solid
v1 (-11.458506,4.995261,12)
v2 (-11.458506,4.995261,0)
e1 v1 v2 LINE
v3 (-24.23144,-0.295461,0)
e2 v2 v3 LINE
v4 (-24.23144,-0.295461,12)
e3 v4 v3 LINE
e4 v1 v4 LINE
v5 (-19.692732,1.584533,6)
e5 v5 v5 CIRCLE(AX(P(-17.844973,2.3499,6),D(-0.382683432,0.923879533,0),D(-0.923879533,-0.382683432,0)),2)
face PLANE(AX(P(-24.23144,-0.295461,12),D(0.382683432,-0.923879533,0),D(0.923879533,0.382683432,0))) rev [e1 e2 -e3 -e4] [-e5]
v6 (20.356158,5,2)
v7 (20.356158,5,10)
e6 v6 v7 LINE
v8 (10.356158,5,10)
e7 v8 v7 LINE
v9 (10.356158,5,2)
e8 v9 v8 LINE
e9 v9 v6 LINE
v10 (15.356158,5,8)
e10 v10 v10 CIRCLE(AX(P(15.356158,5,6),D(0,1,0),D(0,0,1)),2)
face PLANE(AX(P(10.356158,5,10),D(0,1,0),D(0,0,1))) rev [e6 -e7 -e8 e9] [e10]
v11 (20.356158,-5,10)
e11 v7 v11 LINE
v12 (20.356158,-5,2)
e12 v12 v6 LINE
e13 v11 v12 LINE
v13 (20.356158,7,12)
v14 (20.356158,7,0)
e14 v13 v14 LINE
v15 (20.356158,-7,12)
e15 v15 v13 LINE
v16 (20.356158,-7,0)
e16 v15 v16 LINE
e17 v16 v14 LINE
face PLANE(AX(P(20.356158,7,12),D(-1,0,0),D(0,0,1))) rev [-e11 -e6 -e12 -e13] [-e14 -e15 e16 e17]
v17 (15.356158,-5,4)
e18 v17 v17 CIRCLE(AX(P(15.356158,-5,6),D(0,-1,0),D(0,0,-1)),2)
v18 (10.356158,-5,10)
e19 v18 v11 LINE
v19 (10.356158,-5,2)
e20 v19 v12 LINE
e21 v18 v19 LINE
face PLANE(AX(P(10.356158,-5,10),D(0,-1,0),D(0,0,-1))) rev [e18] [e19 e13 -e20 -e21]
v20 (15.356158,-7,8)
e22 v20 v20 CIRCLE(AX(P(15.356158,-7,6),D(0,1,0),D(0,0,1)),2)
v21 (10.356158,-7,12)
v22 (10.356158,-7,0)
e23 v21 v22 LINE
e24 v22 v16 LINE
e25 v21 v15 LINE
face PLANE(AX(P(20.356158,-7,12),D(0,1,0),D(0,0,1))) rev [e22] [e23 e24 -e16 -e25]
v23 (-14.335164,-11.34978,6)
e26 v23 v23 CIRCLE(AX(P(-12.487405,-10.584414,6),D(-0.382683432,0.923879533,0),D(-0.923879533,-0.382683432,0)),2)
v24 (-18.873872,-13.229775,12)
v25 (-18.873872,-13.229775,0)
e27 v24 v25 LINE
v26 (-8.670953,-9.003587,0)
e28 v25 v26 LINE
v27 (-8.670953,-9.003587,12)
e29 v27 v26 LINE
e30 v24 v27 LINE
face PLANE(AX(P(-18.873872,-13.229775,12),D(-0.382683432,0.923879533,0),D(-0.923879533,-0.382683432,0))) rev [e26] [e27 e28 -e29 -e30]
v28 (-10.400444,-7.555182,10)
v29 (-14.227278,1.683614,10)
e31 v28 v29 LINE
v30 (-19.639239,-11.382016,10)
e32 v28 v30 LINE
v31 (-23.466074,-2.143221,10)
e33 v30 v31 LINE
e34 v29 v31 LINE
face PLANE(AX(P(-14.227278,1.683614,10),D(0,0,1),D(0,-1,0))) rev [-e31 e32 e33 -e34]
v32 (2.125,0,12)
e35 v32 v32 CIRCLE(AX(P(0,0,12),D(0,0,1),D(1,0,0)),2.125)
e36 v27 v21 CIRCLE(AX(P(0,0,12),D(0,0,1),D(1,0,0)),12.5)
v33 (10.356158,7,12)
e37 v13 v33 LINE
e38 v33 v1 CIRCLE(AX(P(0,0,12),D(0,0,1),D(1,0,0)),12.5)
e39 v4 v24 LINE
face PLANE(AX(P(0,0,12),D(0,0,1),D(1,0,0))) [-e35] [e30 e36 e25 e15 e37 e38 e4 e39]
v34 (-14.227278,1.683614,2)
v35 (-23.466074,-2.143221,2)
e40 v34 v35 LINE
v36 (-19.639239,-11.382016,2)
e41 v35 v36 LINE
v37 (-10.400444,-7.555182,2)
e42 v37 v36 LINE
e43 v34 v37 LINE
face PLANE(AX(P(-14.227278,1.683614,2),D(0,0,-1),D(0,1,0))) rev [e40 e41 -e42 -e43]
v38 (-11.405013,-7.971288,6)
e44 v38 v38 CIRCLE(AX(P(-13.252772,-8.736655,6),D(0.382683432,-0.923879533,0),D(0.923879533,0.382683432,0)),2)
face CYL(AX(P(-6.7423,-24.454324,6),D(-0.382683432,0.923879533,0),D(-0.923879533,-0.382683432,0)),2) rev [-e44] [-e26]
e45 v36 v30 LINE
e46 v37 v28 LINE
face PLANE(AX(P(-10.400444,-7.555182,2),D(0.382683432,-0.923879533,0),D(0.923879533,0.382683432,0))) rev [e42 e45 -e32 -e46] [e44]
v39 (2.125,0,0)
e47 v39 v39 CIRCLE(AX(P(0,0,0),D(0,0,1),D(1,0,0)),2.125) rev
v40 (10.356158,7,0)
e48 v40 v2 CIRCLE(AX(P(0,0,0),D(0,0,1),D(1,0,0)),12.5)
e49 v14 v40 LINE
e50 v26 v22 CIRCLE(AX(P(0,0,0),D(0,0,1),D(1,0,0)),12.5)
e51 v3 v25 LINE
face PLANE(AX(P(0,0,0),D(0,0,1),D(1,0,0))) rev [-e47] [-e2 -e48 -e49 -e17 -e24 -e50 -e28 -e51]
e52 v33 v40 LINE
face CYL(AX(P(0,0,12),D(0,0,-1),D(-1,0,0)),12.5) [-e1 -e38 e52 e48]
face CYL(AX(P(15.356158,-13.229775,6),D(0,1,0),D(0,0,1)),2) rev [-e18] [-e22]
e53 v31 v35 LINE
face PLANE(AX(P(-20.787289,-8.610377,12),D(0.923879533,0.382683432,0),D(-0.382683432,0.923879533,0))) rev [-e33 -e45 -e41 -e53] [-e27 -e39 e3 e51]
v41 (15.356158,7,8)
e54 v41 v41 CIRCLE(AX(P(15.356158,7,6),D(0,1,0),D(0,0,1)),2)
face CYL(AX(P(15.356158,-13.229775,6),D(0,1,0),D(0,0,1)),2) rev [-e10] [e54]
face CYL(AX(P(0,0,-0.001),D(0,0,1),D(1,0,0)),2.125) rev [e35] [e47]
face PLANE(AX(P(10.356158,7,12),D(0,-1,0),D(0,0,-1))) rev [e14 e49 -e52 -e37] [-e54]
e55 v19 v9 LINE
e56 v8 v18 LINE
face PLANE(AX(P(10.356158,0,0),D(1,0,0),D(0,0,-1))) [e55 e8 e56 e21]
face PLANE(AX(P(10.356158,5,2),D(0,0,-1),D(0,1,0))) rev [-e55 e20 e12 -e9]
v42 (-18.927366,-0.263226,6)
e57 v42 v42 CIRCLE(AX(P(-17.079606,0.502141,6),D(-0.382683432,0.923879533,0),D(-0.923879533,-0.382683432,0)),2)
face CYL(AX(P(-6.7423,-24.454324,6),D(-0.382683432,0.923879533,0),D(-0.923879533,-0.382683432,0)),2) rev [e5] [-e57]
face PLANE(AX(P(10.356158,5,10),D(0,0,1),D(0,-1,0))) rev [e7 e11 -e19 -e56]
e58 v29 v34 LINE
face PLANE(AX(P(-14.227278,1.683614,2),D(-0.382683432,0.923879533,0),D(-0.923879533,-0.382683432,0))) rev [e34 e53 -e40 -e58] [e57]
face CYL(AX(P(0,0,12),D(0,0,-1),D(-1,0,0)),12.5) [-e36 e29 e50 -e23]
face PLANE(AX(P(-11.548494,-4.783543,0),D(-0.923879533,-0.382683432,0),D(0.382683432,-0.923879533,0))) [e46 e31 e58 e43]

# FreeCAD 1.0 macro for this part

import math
import FreeCAD as App
import Part
import Sketcher
Q = App.Units.Quantity

doc = App.newDocument("Part")
body = doc.addObject("PartDesign::Body", "Body")

sketch1 = body.newObject("Sketcher::SketchObject", "Sketch")
sketch1.AttachmentSupport = (doc.getObject("XY_Plane"), [""])
sketch1.MapMode = "FlatFace"
sketch1.addGeometry(Part.Circle(App.Vector(0, 0, 0), App.Vector(0, 0, 1), 12), False)
sketch1.addConstraint(Sketcher.Constraint("Coincident", 0, 3, -1, 1))
sketch1.addConstraint(Sketcher.Constraint("Diameter", 0, Q("25 mm")))
pad1 = body.newObject("PartDesign::Pad", "Pad")
pad1.Profile = sketch1
pad1.Length = 12

sketch2 = body.newObject("Sketcher::SketchObject", "Sketch001")
sketch2.AttachmentSupport = (doc.getObject("XY_Plane"), [""])
sketch2.MapMode = "FlatFace"
sketch2.AttachmentOffset = App.Placement(App.Vector(0, 0, 12), App.Rotation())
sketch2.addGeometry(Part.Circle(App.Vector(0, 0, 0), App.Vector(0, 0, 1), 2.1), False)
sketch2.addConstraint(Sketcher.Constraint("Coincident", 0, 3, -1, 1))
sketch2.addConstraint(Sketcher.Constraint("Diameter", 0, Q("4.25 mm")))
pocket1 = body.newObject("PartDesign::Pocket", "Pocket")
pocket1.Profile = sketch2
pocket1.Type = "UpToFirst"

sketch3 = body.newObject("Sketcher::SketchObject", "Sketch002")
sketch3.AttachmentSupport = (doc.getObject("XY_Plane"), [""])
sketch3.MapMode = "FlatFace"
sketch3.addGeometry(Part.LineSegment(App.Vector(20, 7, 0), App.Vector(10, 7, 0)), False)
sketch3.addGeometry(Part.ArcOfCircle(Part.Circle(App.Vector(0, 0, 0), App.Vector(0, 0, 1), 13), math.radians(-34), math.radians(34)), False)
sketch3.addGeometry(Part.LineSegment(App.Vector(10, -7, 0), App.Vector(20, -7, 0)), False)
sketch3.addGeometry(Part.LineSegment(App.Vector(20, -7, 0), App.Vector(20, 7, 0)), False)
sketch3.addGeometry(Part.LineSegment(App.Vector(-11, 5, 0), App.Vector(-24, 0, 0)), False)
sketch3.addGeometry(Part.LineSegment(App.Vector(-24, 0, 0), App.Vector(-21, -9, 0)), False)
sketch3.addGeometry(Part.LineSegment(App.Vector(-21, -9, 0), App.Vector(-19, -13, 0)), False)
sketch3.addGeometry(Part.LineSegment(App.Vector(-19, -13, 0), App.Vector(-9, -9, 0)), False)
sketch3.addGeometry(Part.ArcOfCircle(Part.Circle(App.Vector(0, 0, 0), App.Vector(0, 0, 1), 12), math.radians(156), math.radians(226)), False)
sketch3.addConstraint(Sketcher.Constraint("Coincident", 0, 2, 1, 2))
sketch3.addConstraint(Sketcher.Constraint("Coincident", 1, 1, 2, 1))
sketch3.addConstraint(Sketcher.Constraint("Coincident", 2, 2, 3, 1))
sketch3.addConstraint(Sketcher.Constraint("Coincident", 3, 2, 0, 1))
sketch3.addConstraint(Sketcher.Constraint("Coincident", 4, 2, 5, 1))
sketch3.addConstraint(Sketcher.Constraint("Coincident", 5, 2, 6, 1))
sketch3.addConstraint(Sketcher.Constraint("Coincident", 6, 2, 7, 1))
sketch3.addConstraint(Sketcher.Constraint("Coincident", 7, 2, 8, 2))
sketch3.addConstraint(Sketcher.Constraint("Coincident", 8, 1, 4, 1))
sketch3.addConstraint(Sketcher.Constraint("Horizontal", 0))
sketch3.addConstraint(Sketcher.Constraint("Horizontal", 2))
sketch3.addConstraint(Sketcher.Constraint("Vertical", 3))
sketch3.addConstraint(Sketcher.Constraint("Coincident", 1, 3, -1, 1))
sketch3.addConstraint(Sketcher.Constraint("Coincident", 8, 3, -1, 1))
sketch3.addConstraint(Sketcher.Constraint("Equal", 1, 8))
sketch3.addConstraint(Sketcher.Constraint("Perpendicular", 4, 5))
sketch3.addConstraint(Sketcher.Constraint("Parallel", 5, 6))
sketch3.addConstraint(Sketcher.Constraint("Perpendicular", 6, 7))
sketch3.addConstraint(Sketcher.Constraint("Vertical", 0, 2, 1, 1))
sketch3.addConstraint(Sketcher.Constraint("Radius", 1, Q("12.5 mm")))
sketch3.addConstraint(Sketcher.Constraint("DistanceX", 0, 2, 0, 1, Q("10 mm")))
sketch3.addConstraint(Sketcher.Constraint("DistanceY", 3, 1, 3, 2, Q("14 mm")))
sketch3.addConstraint(Sketcher.Constraint("Distance", 5, Q("9 mm")))
sketch3.addConstraint(Sketcher.Constraint("Distance", 6, Q("5 mm")))
sketch3.addConstraint(Sketcher.Constraint("Angle", 4, Q("-157.5 deg")))
sketch3.addConstraint(Sketcher.Constraint("Distance", 7, Q("11.043561 mm")))
sketch3.addConstraint(Sketcher.Constraint("DistanceX", 4, 2, -1, 1, Q("24.23144 mm")))
pad2 = body.newObject("PartDesign::Pad", "Pad001")
pad2.Profile = sketch3
pad2.Length = 12

sketch4 = body.newObject("Sketcher::SketchObject", "Sketch003")
sketch4.AttachmentSupport = (doc.getObject("YZ_Plane"), [""])
sketch4.MapMode = "FlatFace"
sketch4.AttachmentOffset = App.Placement(App.Vector(0, 0, 20.356158), App.Rotation())
sketch4.addGeometry(Part.LineSegment(App.Vector(5, 10, 0), App.Vector(-5, 10, 0)), False)
sketch4.addGeometry(Part.LineSegment(App.Vector(-5, 10, 0), App.Vector(-5, 2, 0)), False)
sketch4.addGeometry(Part.LineSegment(App.Vector(-5, 2, 0), App.Vector(5, 2, 0)), False)
sketch4.addGeometry(Part.LineSegment(App.Vector(5, 2, 0), App.Vector(5, 10, 0)), False)
sketch4.addConstraint(Sketcher.Constraint("Coincident", 0, 2, 1, 1))
sketch4.addConstraint(Sketcher.Constraint("Coincident", 1, 2, 2, 1))
sketch4.addConstraint(Sketcher.Constraint("Coincident", 2, 2, 3, 1))
sketch4.addConstraint(Sketcher.Constraint("Coincident", 3, 2, 0, 1))
sketch4.addConstraint(Sketcher.Constraint("Horizontal", 0))
sketch4.addConstraint(Sketcher.Constraint("Vertical", 1))
sketch4.addConstraint(Sketcher.Constraint("Horizontal", 2))
sketch4.addConstraint(Sketcher.Constraint("Vertical", 3))
sketch4.addConstraint(Sketcher.Constraint("DistanceX", 0, 2, 0, 1, Q("10 mm")))
sketch4.addConstraint(Sketcher.Constraint("DistanceY", 1, 2, 1, 1, Q("8 mm")))
sketch4.addConstraint(Sketcher.Constraint("DistanceX", 0, 2, -1, 1, Q("5 mm")))
sketch4.addConstraint(Sketcher.Constraint("DistanceY", -1, 1, 0, 2, Q("10 mm")))
pocket2 = body.newObject("PartDesign::Pocket", "Pocket001")
pocket2.Profile = sketch4
pocket2.Length = 10

sketch5 = body.newObject("Sketcher::SketchObject", "Sketch004")
sketch5.Placement = App.Placement(App.Vector(-20.787289, -8.610377, 0), App.Rotation(App.Vector(0, 0, 1), App.Vector(-0.382683432, 0.923879533, 0), App.Vector(-0.923879533, -0.382683432, 0), "ZXY"))
sketch5.addGeometry(Part.LineSegment(App.Vector(2, 7, 0), App.Vector(2, -3, 0)), False)
sketch5.addGeometry(Part.LineSegment(App.Vector(2, -3, 0), App.Vector(10, -3, 0)), False)
sketch5.addGeometry(Part.LineSegment(App.Vector(10, -3, 0), App.Vector(10, 7, 0)), False)
sketch5.addGeometry(Part.LineSegment(App.Vector(10, 7, 0), App.Vector(2, 7, 0)), False)
sketch5.addConstraint(Sketcher.Constraint("Coincident", 0, 2, 1, 1))
sketch5.addConstraint(Sketcher.Constraint("Coincident", 1, 2, 2, 1))
sketch5.addConstraint(Sketcher.Constraint("Coincident", 2, 2, 3, 1))
sketch5.addConstraint(Sketcher.Constraint("Coincident", 3, 2, 0, 1))
sketch5.addConstraint(Sketcher.Constraint("Vertical", 0))
sketch5.addConstraint(Sketcher.Constraint("Horizontal", 1))
sketch5.addConstraint(Sketcher.Constraint("Vertical", 2))
sketch5.addConstraint(Sketcher.Constraint("Horizontal", 3))
sketch5.addConstraint(Sketcher.Constraint("DistanceX", 1, 1, 1, 2, Q("8 mm")))
sketch5.addConstraint(Sketcher.Constraint("DistanceY", 0, 2, 0, 1, Q("10 mm")))
sketch5.addConstraint(Sketcher.Constraint("DistanceX", -1, 1, 0, 2, Q("2 mm")))
sketch5.addConstraint(Sketcher.Constraint("DistanceY", 0, 2, -1, 1, Q("3 mm")))
pocket3 = body.newObject("PartDesign::Pocket", "Pocket002")
pocket3.Profile = sketch5
pocket3.Length = 10

sketch6 = body.newObject("Sketcher::SketchObject", "Sketch005")
sketch6.AttachmentSupport = (doc.getObject("XZ_Plane"), [""])
sketch6.MapMode = "FlatFace"
sketch6.AttachmentOffset = App.Placement(App.Vector(0, 0, -7), App.Rotation())
sketch6.addGeometry(Part.Circle(App.Vector(15.4, 6, 0), App.Vector(0, 0, 1), 2), False)
sketch6.addConstraint(Sketcher.Constraint("Diameter", 0, Q("4 mm")))
sketch6.addConstraint(Sketcher.Constraint("DistanceY", -1, 1, 0, 3, Q("6 mm")))
sketch6.addConstraint(Sketcher.Constraint("DistanceX", -1, 1, 0, 3, Q("15.356158 mm")))
pocket4 = body.newObject("PartDesign::Pocket", "Pocket003")
pocket4.Profile = sketch6
pocket4.Type = "ThroughAll"
pocket4.Reversed = True

sketch7 = body.newObject("Sketcher::SketchObject", "Sketch006")
sketch7.Placement = App.Placement(App.Vector(-3.444151, 8.314916, 0), App.Rotation(App.Vector(0.923879533, 0.382683432, 0), App.Vector(0, 0, -1.000000001), App.Vector(-0.382683432, 0.923879533, 0), "ZXY"))
sketch7.addGeometry(Part.Circle(App.Vector(-15.6, -6, 0), App.Vector(0, 0, 1), 2), False)
sketch7.addConstraint(Sketcher.Constraint("Diameter", 0, Q("4 mm")))
sketch7.addConstraint(Sketcher.Constraint("DistanceY", 0, 3, -1, 1, Q("6 mm")))
sketch7.addConstraint(Sketcher.Constraint("DistanceX", 0, 3, -1, 1, Q("15.587338 mm")))
pocket5 = body.newObject("PartDesign::Pocket", "Pocket004")
pocket5.Profile = sketch7
pocket5.Type = "ThroughAll"

doc.recompute()
